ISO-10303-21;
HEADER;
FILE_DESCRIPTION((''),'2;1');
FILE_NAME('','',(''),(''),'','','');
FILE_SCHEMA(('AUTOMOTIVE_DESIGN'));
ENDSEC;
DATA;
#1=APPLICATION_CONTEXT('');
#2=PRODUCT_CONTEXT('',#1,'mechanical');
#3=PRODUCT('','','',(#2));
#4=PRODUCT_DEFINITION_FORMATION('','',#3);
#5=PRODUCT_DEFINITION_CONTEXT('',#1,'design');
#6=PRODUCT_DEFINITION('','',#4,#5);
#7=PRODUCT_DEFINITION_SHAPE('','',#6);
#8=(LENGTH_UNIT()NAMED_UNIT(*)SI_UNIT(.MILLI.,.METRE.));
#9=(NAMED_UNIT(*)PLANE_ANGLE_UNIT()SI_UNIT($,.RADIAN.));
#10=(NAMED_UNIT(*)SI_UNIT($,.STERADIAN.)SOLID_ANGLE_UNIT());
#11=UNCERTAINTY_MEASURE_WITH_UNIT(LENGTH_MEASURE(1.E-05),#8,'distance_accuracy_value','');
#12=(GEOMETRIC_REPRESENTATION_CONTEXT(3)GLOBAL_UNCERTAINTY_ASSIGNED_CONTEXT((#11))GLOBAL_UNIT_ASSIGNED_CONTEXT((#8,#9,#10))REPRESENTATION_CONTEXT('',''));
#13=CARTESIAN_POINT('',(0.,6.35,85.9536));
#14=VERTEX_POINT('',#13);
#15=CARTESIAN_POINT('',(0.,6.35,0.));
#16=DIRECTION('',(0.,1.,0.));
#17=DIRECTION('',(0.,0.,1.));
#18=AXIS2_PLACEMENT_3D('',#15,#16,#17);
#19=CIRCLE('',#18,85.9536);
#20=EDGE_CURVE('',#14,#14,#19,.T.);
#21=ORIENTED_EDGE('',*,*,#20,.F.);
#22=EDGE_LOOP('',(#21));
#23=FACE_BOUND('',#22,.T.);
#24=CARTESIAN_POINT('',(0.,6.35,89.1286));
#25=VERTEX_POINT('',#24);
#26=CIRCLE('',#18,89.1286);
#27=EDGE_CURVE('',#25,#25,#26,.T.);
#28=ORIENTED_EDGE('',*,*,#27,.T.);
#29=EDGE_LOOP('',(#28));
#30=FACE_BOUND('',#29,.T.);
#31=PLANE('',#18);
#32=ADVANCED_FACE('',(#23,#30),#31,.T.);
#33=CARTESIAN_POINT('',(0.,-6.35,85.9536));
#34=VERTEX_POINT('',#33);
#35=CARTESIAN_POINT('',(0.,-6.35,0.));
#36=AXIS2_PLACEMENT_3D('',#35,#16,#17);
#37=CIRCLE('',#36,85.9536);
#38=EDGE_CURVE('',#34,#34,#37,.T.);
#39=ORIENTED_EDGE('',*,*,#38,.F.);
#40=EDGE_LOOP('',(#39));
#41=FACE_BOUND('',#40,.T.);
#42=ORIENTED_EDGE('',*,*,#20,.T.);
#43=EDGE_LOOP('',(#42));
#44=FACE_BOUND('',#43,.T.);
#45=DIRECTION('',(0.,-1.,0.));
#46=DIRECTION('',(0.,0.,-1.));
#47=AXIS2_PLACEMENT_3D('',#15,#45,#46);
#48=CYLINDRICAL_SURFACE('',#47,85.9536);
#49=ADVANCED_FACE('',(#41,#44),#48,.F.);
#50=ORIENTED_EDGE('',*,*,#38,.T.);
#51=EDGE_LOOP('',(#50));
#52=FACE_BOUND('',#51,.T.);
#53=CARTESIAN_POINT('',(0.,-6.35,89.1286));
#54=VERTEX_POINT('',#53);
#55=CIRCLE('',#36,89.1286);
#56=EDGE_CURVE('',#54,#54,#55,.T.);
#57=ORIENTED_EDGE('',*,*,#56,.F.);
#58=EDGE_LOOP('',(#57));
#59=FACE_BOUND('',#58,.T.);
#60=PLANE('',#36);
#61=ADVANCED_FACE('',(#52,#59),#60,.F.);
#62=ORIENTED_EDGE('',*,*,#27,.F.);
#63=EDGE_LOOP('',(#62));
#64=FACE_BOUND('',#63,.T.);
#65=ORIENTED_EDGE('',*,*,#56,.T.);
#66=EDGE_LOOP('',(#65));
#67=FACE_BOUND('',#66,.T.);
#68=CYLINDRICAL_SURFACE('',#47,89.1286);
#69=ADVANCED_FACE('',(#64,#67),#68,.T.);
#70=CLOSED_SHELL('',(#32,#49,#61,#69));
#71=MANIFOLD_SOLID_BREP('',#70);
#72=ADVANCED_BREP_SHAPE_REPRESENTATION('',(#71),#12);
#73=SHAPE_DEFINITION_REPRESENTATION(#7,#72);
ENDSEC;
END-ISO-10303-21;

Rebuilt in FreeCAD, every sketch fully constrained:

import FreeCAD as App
import Part
import Sketcher
Q = App.Units.Quantity

doc = App.newDocument("Part")
body = doc.addObject("PartDesign::Body", "Body")

sketch1 = doc.addObject("Sketcher::SketchObject", "Sketch")
body.addObject(sketch1)
sketch1.AttachmentSupport = (doc.XZ_Plane, [""])
sketch1.MapMode = "FlatFace"
sketch1.addGeometry([
    Part.Circle(App.Vector(0, 0, 0), App.Vector(0, 0, 1), 89),
    Part.Circle(App.Vector(0, 0, 0), App.Vector(0, 0, 1), 86),
], False)
sketch1.addConstraint([
    Sketcher.Constraint("Coincident", 0, 3, -1, 1),
    Sketcher.Constraint("Coincident", 1, 3, -1, 1),
    Sketcher.Constraint("Diameter", 0, Q("7.018 in")),
    Sketcher.Constraint("Diameter", 1, Q("6.768 in")),
])
pad1 = doc.addObject("PartDesign::Pad", "Pad")
body.addObject(pad1)
pad1.Profile = sketch1
pad1.Length = Q("0.5 in")
pad1.Midplane = True

doc.recompute()
